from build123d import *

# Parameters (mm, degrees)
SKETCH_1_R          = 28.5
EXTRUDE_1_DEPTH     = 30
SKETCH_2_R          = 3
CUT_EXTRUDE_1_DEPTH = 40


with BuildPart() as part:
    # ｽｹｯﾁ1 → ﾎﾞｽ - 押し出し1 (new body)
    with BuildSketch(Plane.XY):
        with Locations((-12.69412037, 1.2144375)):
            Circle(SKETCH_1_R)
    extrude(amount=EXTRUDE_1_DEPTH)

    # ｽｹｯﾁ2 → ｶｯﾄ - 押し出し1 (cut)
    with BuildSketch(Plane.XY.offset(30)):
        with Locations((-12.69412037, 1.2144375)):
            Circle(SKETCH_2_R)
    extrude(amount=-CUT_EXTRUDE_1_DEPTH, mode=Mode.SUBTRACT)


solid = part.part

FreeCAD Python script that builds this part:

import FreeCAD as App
import Part
import Sketcher

doc = App.newDocument("Part")
body = doc.addObject("PartDesign::Body", "Body")

sketch1 = body.newObject("Sketcher::SketchObject", "Sketch")
sketch1.AttachmentSupport = (doc.getObject("XY_Plane"), [""])
sketch1.MapMode = "FlatFace"
sketch1.addGeometry(Part.Circle(App.Vector(-13, 1, 0), App.Vector(0, 0, 1), 28), False)
sketch1.addConstraint(Sketcher.Constraint("Diameter", 0, 57.0))
sketch1.addConstraint(Sketcher.Constraint("DistanceX", 0, 3, -1, 1, 12.69412))
sketch1.addConstraint(Sketcher.Constraint("DistanceY", -1, 1, 0, 3, 1.214438))
pad1 = body.newObject("PartDesign::Pad", "Pad")
pad1.Profile = sketch1
pad1.Length = 30

sketch2 = body.newObject("Sketcher::SketchObject", "Sketch001")
sketch2.AttachmentSupport = (doc.getObject("XY_Plane"), [""])
sketch2.MapMode = "FlatFace"
sketch2.AttachmentOffset = App.Placement(App.Vector(0, 0, 30), App.Rotation())
sketch2.addGeometry(Part.Circle(App.Vector(-12.7, 1.2, 0), App.Vector(0, 0, 1), 3), False)
sketch2.addConstraint(Sketcher.Constraint("Diameter", 0, 6.0))
sketch2.addConstraint(Sketcher.Constraint("DistanceX", 0, 3, -1, 1, 12.69412))
sketch2.addConstraint(Sketcher.Constraint("DistanceY", -1, 1, 0, 3, 1.214438))
pocket1 = body.newObject("PartDesign::Pocket", "Pocket")
pocket1.Profile = sketch2
pocket1.Length = 40

doc.recompute()
